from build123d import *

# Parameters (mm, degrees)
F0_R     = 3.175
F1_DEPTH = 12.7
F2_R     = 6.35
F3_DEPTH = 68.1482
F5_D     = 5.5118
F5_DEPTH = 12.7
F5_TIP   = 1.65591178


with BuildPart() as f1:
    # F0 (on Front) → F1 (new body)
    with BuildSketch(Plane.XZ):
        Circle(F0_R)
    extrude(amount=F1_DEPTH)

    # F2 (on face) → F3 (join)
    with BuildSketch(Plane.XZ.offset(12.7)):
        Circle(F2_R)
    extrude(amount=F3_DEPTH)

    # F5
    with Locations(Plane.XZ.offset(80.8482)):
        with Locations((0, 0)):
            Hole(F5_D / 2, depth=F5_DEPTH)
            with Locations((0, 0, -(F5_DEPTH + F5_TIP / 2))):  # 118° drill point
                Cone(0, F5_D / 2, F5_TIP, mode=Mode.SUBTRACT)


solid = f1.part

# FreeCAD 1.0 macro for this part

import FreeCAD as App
import Part
import Sketcher
from FreeCAD import Vector
Q = App.Units.Quantity

doc = App.newDocument("Part")
body = doc.addObject("PartDesign::Body", "Body")

# Sketch on XZ plane
sketch1 = body.newObject("Sketcher::SketchObject", "Sketch")
sketch1.AttachmentSupport = (doc.getObject("XZ_Plane"), [""])
sketch1.MapMode = "FlatFace"
sketch1.addGeometry(Part.Circle(Vector(0, 0, 0), Vector(0, 0, 1), 3.2), False)
sketch1.addConstraint([
    Sketcher.Constraint("Coincident", 0, 3, -1, 1),
    Sketcher.Constraint("Diameter", 0, Q("0.25 in")),
])
pad1 = body.newObject("PartDesign::Pad", "Pad")
pad1.Profile = sketch1
pad1.Length = Q("0.5 in")

# Sketch on XZ plane
sketch2 = body.newObject("Sketcher::SketchObject", "Sketch001")
sketch2.AttachmentSupport = (doc.getObject("XZ_Plane"), [""])
sketch2.MapMode = "FlatFace"
sketch2.AttachmentOffset = App.Placement(Vector(0, 0, 0.5 * 25.4), App.Rotation())
sketch2.addGeometry(Part.Circle(Vector(0, 0, 0), Vector(0, 0, 1), 6), False)
sketch2.addConstraint([
    Sketcher.Constraint("Coincident", 0, 3, -1, 1),
    Sketcher.Constraint("Diameter", 0, Q("0.5 in")),
])
pad2 = body.newObject("PartDesign::Pad", "Pad001")
pad2.Profile = sketch2
pad2.Length = Q("2.683 in")

# Sketch on XZ plane
sketch3 = body.newObject("Sketcher::SketchObject", "Sketch002")
sketch3.AttachmentSupport = (doc.getObject("XZ_Plane"), [""])
sketch3.MapMode = "FlatFace"
sketch3.AttachmentOffset = App.Placement(Vector(0, 0, 3.183 * 25.4), App.Rotation())
sketch3.addGeometry(Part.Circle(Vector(0, 0, 0), Vector(0, 0, 1), 2.8), False)
sketch3.addConstraint([
    Sketcher.Constraint("Coincident", 0, 3, -1, 1),
    Sketcher.Constraint("Diameter", 0, Q("0.217 in")),
])
doc.recompute()
hole = body.newObject("PartDesign::Hole", "Hole")
hole.Profile = sketch3
hole.ThreadType = "None"
hole.Diameter = Q("0.217 in")
hole.DepthType = "Dimension"
hole.Depth = Q("0.5 in")
hole.DrillPoint = "Angled"
hole.DrillPointAngle = 118

doc.recompute()
